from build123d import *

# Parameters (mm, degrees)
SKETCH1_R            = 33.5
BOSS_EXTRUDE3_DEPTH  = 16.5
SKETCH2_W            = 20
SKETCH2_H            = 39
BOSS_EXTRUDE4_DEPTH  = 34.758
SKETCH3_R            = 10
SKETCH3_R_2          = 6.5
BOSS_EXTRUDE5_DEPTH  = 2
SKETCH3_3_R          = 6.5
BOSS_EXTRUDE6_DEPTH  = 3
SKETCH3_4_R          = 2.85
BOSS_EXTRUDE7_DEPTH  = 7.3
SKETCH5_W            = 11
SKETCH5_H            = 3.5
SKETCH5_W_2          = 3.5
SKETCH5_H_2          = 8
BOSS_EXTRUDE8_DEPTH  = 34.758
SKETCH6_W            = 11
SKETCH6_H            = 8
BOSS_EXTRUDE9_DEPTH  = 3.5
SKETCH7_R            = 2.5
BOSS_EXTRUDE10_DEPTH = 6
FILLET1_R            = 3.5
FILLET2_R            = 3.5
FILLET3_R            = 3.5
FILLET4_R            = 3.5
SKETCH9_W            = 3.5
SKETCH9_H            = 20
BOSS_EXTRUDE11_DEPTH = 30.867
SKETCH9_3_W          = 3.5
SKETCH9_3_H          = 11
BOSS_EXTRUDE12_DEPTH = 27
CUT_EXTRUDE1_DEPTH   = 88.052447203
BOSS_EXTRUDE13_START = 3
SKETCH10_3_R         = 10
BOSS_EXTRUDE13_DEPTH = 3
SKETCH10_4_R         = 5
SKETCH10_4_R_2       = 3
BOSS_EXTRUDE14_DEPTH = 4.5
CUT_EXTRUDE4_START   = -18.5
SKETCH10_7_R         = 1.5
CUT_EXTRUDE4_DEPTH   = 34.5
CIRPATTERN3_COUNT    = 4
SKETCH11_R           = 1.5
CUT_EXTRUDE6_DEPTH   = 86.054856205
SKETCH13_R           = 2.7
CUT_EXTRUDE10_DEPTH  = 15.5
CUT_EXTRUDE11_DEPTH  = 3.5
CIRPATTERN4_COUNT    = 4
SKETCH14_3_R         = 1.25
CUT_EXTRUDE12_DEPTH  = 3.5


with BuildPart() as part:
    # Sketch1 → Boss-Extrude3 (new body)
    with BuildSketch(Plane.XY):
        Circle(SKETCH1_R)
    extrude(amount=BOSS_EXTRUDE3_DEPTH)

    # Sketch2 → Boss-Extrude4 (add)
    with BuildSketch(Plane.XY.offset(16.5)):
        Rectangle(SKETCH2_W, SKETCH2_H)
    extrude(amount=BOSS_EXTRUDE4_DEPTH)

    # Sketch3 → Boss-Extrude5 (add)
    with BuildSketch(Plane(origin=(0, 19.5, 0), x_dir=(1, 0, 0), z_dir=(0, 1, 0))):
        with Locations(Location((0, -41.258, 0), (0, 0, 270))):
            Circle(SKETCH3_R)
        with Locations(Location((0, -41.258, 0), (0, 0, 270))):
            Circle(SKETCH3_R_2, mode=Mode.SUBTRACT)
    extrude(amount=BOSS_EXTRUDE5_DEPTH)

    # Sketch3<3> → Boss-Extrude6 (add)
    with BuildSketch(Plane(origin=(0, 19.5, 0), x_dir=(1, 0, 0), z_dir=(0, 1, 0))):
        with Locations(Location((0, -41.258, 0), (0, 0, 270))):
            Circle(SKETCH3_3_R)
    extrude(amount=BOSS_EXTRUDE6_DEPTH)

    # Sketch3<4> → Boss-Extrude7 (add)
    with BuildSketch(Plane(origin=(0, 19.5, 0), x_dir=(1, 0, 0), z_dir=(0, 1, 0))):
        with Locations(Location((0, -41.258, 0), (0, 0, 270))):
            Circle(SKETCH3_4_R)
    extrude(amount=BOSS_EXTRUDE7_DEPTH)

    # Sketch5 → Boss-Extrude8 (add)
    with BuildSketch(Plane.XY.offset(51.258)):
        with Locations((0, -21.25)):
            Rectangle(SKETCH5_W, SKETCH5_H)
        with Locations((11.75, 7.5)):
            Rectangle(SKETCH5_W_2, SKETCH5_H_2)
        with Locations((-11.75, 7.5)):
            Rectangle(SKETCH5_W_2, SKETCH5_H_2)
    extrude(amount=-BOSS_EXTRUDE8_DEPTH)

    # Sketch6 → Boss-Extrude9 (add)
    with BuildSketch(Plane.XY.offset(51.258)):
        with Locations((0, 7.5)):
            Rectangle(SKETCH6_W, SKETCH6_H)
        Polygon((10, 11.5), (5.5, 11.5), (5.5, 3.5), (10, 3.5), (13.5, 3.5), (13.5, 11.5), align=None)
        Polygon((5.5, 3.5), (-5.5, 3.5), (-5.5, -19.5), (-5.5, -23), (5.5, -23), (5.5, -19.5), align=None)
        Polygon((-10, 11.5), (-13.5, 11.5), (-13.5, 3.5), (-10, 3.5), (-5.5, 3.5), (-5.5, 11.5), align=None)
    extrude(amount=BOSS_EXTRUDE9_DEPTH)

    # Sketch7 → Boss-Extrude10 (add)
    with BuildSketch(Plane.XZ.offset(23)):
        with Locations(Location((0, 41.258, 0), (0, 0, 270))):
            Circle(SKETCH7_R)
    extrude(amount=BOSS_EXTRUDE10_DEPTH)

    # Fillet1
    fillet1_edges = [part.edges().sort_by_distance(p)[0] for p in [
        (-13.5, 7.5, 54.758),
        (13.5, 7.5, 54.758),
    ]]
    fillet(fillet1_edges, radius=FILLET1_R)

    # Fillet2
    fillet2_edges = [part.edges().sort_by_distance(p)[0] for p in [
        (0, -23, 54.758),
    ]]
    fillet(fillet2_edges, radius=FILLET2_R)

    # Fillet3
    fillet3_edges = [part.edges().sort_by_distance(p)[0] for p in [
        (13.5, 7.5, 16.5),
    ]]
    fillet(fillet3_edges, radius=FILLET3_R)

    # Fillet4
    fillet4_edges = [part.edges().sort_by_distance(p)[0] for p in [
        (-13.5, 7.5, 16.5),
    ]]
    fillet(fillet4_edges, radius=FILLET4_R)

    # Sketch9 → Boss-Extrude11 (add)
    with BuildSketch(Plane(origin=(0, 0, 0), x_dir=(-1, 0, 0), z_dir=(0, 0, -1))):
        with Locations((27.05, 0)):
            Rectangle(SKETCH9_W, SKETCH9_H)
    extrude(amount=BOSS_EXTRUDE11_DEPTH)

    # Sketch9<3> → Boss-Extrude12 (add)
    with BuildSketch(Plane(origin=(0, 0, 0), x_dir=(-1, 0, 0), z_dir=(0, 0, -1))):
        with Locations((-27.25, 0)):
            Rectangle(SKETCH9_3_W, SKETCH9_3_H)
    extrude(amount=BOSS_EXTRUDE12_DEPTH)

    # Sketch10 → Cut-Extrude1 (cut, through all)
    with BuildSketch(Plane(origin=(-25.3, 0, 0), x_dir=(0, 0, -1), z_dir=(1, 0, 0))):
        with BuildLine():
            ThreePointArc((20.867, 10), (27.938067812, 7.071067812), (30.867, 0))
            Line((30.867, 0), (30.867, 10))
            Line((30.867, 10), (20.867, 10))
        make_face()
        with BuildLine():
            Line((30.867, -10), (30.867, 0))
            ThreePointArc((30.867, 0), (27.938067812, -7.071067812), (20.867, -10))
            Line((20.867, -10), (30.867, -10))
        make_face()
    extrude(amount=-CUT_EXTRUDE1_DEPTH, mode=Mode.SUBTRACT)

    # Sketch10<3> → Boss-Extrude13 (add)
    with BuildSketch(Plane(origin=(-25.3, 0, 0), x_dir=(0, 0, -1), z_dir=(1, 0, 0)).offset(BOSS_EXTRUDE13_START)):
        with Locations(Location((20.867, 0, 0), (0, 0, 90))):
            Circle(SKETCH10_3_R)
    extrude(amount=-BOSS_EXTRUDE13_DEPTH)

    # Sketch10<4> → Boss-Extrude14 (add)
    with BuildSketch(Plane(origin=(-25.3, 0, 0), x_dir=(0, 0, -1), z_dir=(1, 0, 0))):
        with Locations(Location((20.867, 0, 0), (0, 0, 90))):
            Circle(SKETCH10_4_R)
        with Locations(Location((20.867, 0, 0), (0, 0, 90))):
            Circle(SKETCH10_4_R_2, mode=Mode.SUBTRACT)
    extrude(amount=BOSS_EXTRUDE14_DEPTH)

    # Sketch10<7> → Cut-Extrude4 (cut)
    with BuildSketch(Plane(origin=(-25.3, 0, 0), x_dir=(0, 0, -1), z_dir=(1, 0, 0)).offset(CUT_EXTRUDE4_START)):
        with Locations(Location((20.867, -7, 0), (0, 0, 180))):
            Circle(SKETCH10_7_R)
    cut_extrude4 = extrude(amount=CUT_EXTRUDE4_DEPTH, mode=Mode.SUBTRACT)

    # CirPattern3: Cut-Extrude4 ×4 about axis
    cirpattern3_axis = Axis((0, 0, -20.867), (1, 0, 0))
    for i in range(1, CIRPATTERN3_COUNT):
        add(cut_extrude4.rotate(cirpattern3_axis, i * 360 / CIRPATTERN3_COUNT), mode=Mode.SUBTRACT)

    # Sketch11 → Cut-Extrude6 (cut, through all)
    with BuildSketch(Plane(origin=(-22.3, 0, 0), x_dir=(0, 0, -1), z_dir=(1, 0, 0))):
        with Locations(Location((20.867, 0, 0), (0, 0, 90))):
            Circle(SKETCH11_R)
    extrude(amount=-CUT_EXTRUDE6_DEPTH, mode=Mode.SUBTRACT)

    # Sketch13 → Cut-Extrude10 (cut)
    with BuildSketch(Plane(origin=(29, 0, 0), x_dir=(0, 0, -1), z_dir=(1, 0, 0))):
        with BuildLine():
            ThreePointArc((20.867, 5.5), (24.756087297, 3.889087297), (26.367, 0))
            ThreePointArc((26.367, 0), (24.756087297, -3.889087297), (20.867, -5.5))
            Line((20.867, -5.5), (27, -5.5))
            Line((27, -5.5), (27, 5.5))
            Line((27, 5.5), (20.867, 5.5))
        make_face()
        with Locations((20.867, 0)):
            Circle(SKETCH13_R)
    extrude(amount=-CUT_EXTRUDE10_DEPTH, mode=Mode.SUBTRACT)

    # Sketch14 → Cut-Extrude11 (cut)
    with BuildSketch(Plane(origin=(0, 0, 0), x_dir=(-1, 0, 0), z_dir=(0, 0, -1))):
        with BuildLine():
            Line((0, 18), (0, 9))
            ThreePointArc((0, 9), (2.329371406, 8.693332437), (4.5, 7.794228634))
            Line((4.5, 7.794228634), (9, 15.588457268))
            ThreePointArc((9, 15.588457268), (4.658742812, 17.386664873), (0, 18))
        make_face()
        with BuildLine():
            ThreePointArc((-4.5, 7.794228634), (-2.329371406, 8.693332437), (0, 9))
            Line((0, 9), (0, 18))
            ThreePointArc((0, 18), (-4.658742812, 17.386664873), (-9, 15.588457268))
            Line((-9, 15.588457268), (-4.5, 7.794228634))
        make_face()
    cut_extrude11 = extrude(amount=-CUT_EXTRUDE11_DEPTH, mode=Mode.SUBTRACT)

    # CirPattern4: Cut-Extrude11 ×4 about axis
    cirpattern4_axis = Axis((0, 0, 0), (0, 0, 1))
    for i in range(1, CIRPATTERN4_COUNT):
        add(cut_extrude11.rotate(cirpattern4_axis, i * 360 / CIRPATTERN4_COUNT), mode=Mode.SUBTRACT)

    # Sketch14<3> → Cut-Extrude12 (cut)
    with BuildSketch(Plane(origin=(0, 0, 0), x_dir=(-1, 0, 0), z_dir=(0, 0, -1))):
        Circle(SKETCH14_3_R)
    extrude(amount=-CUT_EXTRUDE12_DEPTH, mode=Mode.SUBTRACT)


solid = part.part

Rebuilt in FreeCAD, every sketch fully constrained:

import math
import FreeCAD as App
import Part
import Sketcher

V = App.Vector
Q = App.Units.Quantity


def edges_at(feature, points):
    """Names of the edges that pass closest to the given points."""
    edges = feature.Shape.Edges
    near = lambda p: min(range(len(edges)), key=lambda i: edges[i].distToShape(Part.Vertex(*p))[0])
    return sorted({f"Edge{near(p) + 1}" for p in points})


def add_polygon(sketch, points):
    """Adds a closed chain of lines whose ends are joined by coincident constraints."""
    first, n = sketch.GeometryCount, len(points)
    for a, b in zip(points, points[1:] + points[:1]):
        sketch.addGeometry(Part.LineSegment(App.Vector(*a, 0), App.Vector(*b, 0)), False)
    for i in range(n):
        sketch.addConstraint(Sketcher.Constraint("Coincident", first + i, 2, first + (i + 1) % n, 1))

doc = App.newDocument("Part")
body = doc.addObject("PartDesign::Body", "Body")

# Sketch on XY plane
sketch1 = body.newObject("Sketcher::SketchObject", "Sketch")
sketch1.AttachmentSupport = (doc.getObject("XY_Plane"), [""])
sketch1.MapMode = "FlatFace"
sketch1.addGeometry(Part.Circle(V(0, 0, 0), V(0, 0, 1), 34), False)
sketch1.addConstraint(Sketcher.Constraint("Coincident", 0, 3, -1, 1))
sketch1.addConstraint(Sketcher.Constraint("Diameter", 0, Q("67 mm")))
pad1 = body.newObject("PartDesign::Pad", "Pad")
pad1.Profile = sketch1
pad1.Length = 16.5

# Sketch on XY plane
sketch2 = body.newObject("Sketcher::SketchObject", "Sketch001")
sketch2.AttachmentSupport = (doc.getObject("XY_Plane"), [""])
sketch2.MapMode = "FlatFace"
sketch2.AttachmentOffset = App.Placement(V(0, 0, 16.5), App.Rotation())
add_polygon(sketch2, [(-10, 20), (-10, -20), (10, -20), (10, 20)])  # lines 0-3
sketch2.addConstraint(Sketcher.Constraint("Vertical", 0))
sketch2.addConstraint(Sketcher.Constraint("Horizontal", 1))
sketch2.addConstraint(Sketcher.Constraint("Vertical", 2))
sketch2.addConstraint(Sketcher.Constraint("Horizontal", 3))
sketch2.addConstraint(Sketcher.Constraint("Symmetric", 0, 2, 2, 2, -1, 1))
sketch2.addConstraint(Sketcher.Constraint("DistanceX", 1, 1, 1, 2, Q("20 mm")))
sketch2.addConstraint(Sketcher.Constraint("DistanceY", 0, 2, 0, 1, Q("39 mm")))
pad2 = body.newObject("PartDesign::Pad", "Pad001")
pad2.Profile = sketch2
pad2.Length = 34.758

# Sketch on XZ plane
sketch3 = body.newObject("Sketcher::SketchObject", "Sketch002")
sketch3.AttachmentSupport = (doc.getObject("XZ_Plane"), [""])
sketch3.MapMode = "FlatFace"
sketch3.AttachmentOffset = App.Placement(V(0, 0, -19.5), App.Rotation())
sketch3.addGeometry(Part.Circle(V(0, 41, 0), V(0, 0, 1), 10), False)
sketch3.addGeometry(Part.Circle(V(0, 41, 0), V(0, 0, 1), 6), False)
sketch3.addConstraint(Sketcher.Constraint("Coincident", 1, 3, 0, 3))
sketch3.addConstraint(Sketcher.Constraint("PointOnObject", 0, 3, -2))
sketch3.addConstraint(Sketcher.Constraint("Diameter", 0, Q("20 mm")))
sketch3.addConstraint(Sketcher.Constraint("Diameter", 1, Q("13 mm")))
sketch3.addConstraint(Sketcher.Constraint("DistanceY", -1, 1, 0, 3, Q("41.258 mm")))
pad3 = body.newObject("PartDesign::Pad", "Pad002")
pad3.Profile = sketch3
pad3.Length = 2
pad3.Reversed = True

# Sketch on XZ plane
sketch4 = body.newObject("Sketcher::SketchObject", "Sketch003")
sketch4.AttachmentSupport = (doc.getObject("XZ_Plane"), [""])
sketch4.MapMode = "FlatFace"
sketch4.AttachmentOffset = App.Placement(V(0, 0, -19.5), App.Rotation())
sketch4.addGeometry(Part.Circle(V(0, 41, 0), V(0, 0, 1), 6), False)
sketch4.addConstraint(Sketcher.Constraint("PointOnObject", 0, 3, -2))
sketch4.addConstraint(Sketcher.Constraint("Diameter", 0, Q("13 mm")))
sketch4.addConstraint(Sketcher.Constraint("DistanceY", -1, 1, 0, 3, Q("41.258 mm")))
pad4 = body.newObject("PartDesign::Pad", "Pad003")
pad4.Profile = sketch4
pad4.Length = 3
pad4.Reversed = True

# Sketch on XZ plane
sketch5 = body.newObject("Sketcher::SketchObject", "Sketch004")
sketch5.AttachmentSupport = (doc.getObject("XZ_Plane"), [""])
sketch5.MapMode = "FlatFace"
sketch5.AttachmentOffset = App.Placement(V(0, 0, -19.5), App.Rotation())
sketch5.addGeometry(Part.Circle(V(0, 41.3, 0), V(0, 0, 1), 2.9), False)
sketch5.addConstraint(Sketcher.Constraint("PointOnObject", 0, 3, -2))
sketch5.addConstraint(Sketcher.Constraint("Diameter", 0, Q("5.7 mm")))
sketch5.addConstraint(Sketcher.Constraint("DistanceY", -1, 1, 0, 3, Q("41.258 mm")))
pad5 = body.newObject("PartDesign::Pad", "Pad004")
pad5.Profile = sketch5
pad5.Length = 7.3
pad5.Reversed = True

# Sketch on XY plane
sketch6 = body.newObject("Sketcher::SketchObject", "Sketch005")
sketch6.AttachmentSupport = (doc.getObject("XY_Plane"), [""])
sketch6.MapMode = "FlatFace"
sketch6.AttachmentOffset = App.Placement(V(0, 0, 51.258), App.Rotation())
add_polygon(sketch6, [(-5.5, -19.5), (-5.5, -23), (5.5, -23), (5.5, -19.5)])  # lines 0-3
add_polygon(sketch6, [(10, 11.5), (10, 3.5), (13.5, 3.5), (13.5, 11.5)])  # lines 4-7
add_polygon(sketch6, [(-13.5, 11.5), (-13.5, 3.5), (-10, 3.5), (-10, 11.5)])  # lines 8-11
sketch6.addConstraint(Sketcher.Constraint("Vertical", 0))
sketch6.addConstraint(Sketcher.Constraint("Horizontal", 1))
sketch6.addConstraint(Sketcher.Constraint("Vertical", 2))
sketch6.addConstraint(Sketcher.Constraint("Horizontal", 3))
sketch6.addConstraint(Sketcher.Constraint("Vertical", 4))
sketch6.addConstraint(Sketcher.Constraint("Horizontal", 5))
sketch6.addConstraint(Sketcher.Constraint("Vertical", 6))
sketch6.addConstraint(Sketcher.Constraint("Horizontal", 7))
sketch6.addConstraint(Sketcher.Constraint("Vertical", 8))
sketch6.addConstraint(Sketcher.Constraint("Horizontal", 9))
sketch6.addConstraint(Sketcher.Constraint("Vertical", 10))
sketch6.addConstraint(Sketcher.Constraint("Horizontal", 11))
sketch6.addConstraint(Sketcher.Constraint("Symmetric", 5, 2, 8, 2, -2))
sketch6.addConstraint(Sketcher.Constraint("Symmetric", 7, 2, 10, 2, -2))
sketch6.addConstraint(Sketcher.Constraint("Equal", 11, 0))
sketch6.addConstraint(Sketcher.Constraint("DistanceX", 1, 1, 1, 2, Q("11 mm")))
sketch6.addConstraint(Sketcher.Constraint("DistanceY", 4, 2, 4, 1, Q("8 mm")))
sketch6.addConstraint(Sketcher.Constraint("DistanceX", 5, 1, 5, 2, Q("3.5 mm")))
sketch6.addConstraint(Sketcher.Constraint("DistanceY", 0, 2, -1, 1, Q("23 mm")))
sketch6.addConstraint(Sketcher.Constraint("DistanceX", -1, 1, 4, 2, Q("10 mm")))
sketch6.addConstraint(Sketcher.Constraint("DistanceY", 2, 2, 4, 2, Q("23 mm")))
sketch6.addConstraint(Sketcher.Constraint("DistanceX", 2, 2, 5, 2, Q("8 mm")))
pad6 = body.newObject("PartDesign::Pad", "Pad005")
pad6.Profile = sketch6
pad6.Length = 34.758
pad6.Reversed = True

# Sketch on XY plane
sketch7 = body.newObject("Sketcher::SketchObject", "Sketch006")
sketch7.AttachmentSupport = (doc.getObject("XY_Plane"), [""])
sketch7.MapMode = "FlatFace"
sketch7.AttachmentOffset = App.Placement(V(0, 0, 51.258), App.Rotation())
add_polygon(sketch7, [(-6, 4), (-6, -23), (6, -23), (6, 4), (14, 4), (14, 12), (-14, 12), (-14, 4)])  # lines 0-7
sketch7.addConstraint(Sketcher.Constraint("Vertical", 0))
sketch7.addConstraint(Sketcher.Constraint("Horizontal", 1))
sketch7.addConstraint(Sketcher.Constraint("Vertical", 2))
sketch7.addConstraint(Sketcher.Constraint("Horizontal", 3))
sketch7.addConstraint(Sketcher.Constraint("Vertical", 4))
sketch7.addConstraint(Sketcher.Constraint("Horizontal", 5))
sketch7.addConstraint(Sketcher.Constraint("Vertical", 6))
sketch7.addConstraint(Sketcher.Constraint("Horizontal", 7))
sketch7.addConstraint(Sketcher.Constraint("Symmetric", 3, 2, 6, 2, -2))
sketch7.addConstraint(Sketcher.Constraint("Equal", 3, 7))
sketch7.addConstraint(Sketcher.Constraint("Equal", 7, 4))
sketch7.addConstraint(Sketcher.Constraint("DistanceX", 1, 1, 1, 2, Q("11 mm")))
sketch7.addConstraint(Sketcher.Constraint("DistanceX", 3, 1, 3, 2, Q("8 mm")))
sketch7.addConstraint(Sketcher.Constraint("DistanceY", 0, 2, 0, 1, Q("26.5 mm")))
sketch7.addConstraint(Sketcher.Constraint("DistanceY", 0, 2, -1, 1, Q("23 mm")))
pad7 = body.newObject("PartDesign::Pad", "Pad006")
pad7.Profile = sketch7
pad7.Length = 3.5

# Sketch on XZ plane
sketch8 = body.newObject("Sketcher::SketchObject", "Sketch007")
sketch8.AttachmentSupport = (doc.getObject("XZ_Plane"), [""])
sketch8.MapMode = "FlatFace"
sketch8.AttachmentOffset = App.Placement(V(0, 0, 23), App.Rotation())
sketch8.addGeometry(Part.Circle(V(0, 41.3, 0), V(0, 0, 1), 2.5), False)
sketch8.addConstraint(Sketcher.Constraint("PointOnObject", 0, 3, -2))
sketch8.addConstraint(Sketcher.Constraint("Diameter", 0, Q("5 mm")))
sketch8.addConstraint(Sketcher.Constraint("DistanceY", -1, 1, 0, 3, Q("41.258 mm")))
pad8 = body.newObject("PartDesign::Pad", "Pad007")
pad8.Profile = sketch8
pad8.Length = 6
doc.recompute()

fillet = body.newObject("PartDesign::Fillet", "Fillet")
fillet.Base = (pad8, edges_at(pad8, [(-13.5, 7.5, 54.758), (13.5, 7.5, 54.758)]))
fillet.Radius = 3.5
doc.recompute()

fillet2 = body.newObject("PartDesign::Fillet", "Fillet001")
fillet2.Base = (fillet, edges_at(fillet, [(0, -23, 54.758)]))
fillet2.Radius = 3.5
doc.recompute()

fillet3 = body.newObject("PartDesign::Fillet", "Fillet002")
fillet3.Base = (fillet2, edges_at(fillet2, [(13.5, 7.5, 16.5)]))
fillet3.Radius = 3.5
doc.recompute()

fillet4 = body.newObject("PartDesign::Fillet", "Fillet003")
fillet4.Base = (fillet3, edges_at(fillet3, [(-13.5, 7.5, 16.5)]))
fillet4.Radius = 3.5

# Sketch on XY plane
sketch9 = body.newObject("Sketcher::SketchObject", "Sketch008")
sketch9.AttachmentSupport = (doc.getObject("XY_Plane"), [""])
sketch9.MapMode = "FlatFace"
add_polygon(sketch9, [(-25.3, 10), (-25.3, -10), (-28.8, -10), (-28.8, 10)])  # lines 0-3
sketch9.addConstraint(Sketcher.Constraint("Vertical", 0))
sketch9.addConstraint(Sketcher.Constraint("Horizontal", 1))
sketch9.addConstraint(Sketcher.Constraint("Vertical", 2))
sketch9.addConstraint(Sketcher.Constraint("Horizontal", 3))
sketch9.addConstraint(Sketcher.Constraint("DistanceY", 0, 2, 0, 1, Q("20 mm")))
sketch9.addConstraint(Sketcher.Constraint("DistanceX", 1, 2, 1, 1, Q("3.5 mm")))
sketch9.addConstraint(Sketcher.Constraint("DistanceY", 0, 2, -1, 1, Q("10 mm")))
sketch9.addConstraint(Sketcher.Constraint("DistanceX", 0, 2, -1, 1, Q("25.3 mm")))
pad9 = body.newObject("PartDesign::Pad", "Pad008")
pad9.Profile = sketch9
pad9.Length = 30.867
pad9.Reversed = True

# Sketch on XY plane
sketch10 = body.newObject("Sketcher::SketchObject", "Sketch009")
sketch10.AttachmentSupport = (doc.getObject("XY_Plane"), [""])
sketch10.MapMode = "FlatFace"
add_polygon(sketch10, [(29, 5.5), (29, -5.5), (25.5, -5.5), (25.5, 5.5)])  # lines 0-3
sketch10.addConstraint(Sketcher.Constraint("Vertical", 0))
sketch10.addConstraint(Sketcher.Constraint("Horizontal", 1))
sketch10.addConstraint(Sketcher.Constraint("Vertical", 2))
sketch10.addConstraint(Sketcher.Constraint("Horizontal", 3))
sketch10.addConstraint(Sketcher.Constraint("DistanceY", 0, 2, 0, 1, Q("11 mm")))
sketch10.addConstraint(Sketcher.Constraint("DistanceX", 1, 2, 1, 1, Q("3.5 mm")))
sketch10.addConstraint(Sketcher.Constraint("DistanceX", -1, 1, 0, 2, Q("29 mm")))
sketch10.addConstraint(Sketcher.Constraint("DistanceY", 0, 2, -1, 1, Q("5.5 mm")))
pad10 = body.newObject("PartDesign::Pad", "Pad009")
pad10.Profile = sketch10
pad10.Length = 27
pad10.Reversed = True

# Sketch on YZ plane
sketch11 = body.newObject("Sketcher::SketchObject", "Sketch010")
sketch11.AttachmentSupport = (doc.getObject("YZ_Plane"), [""])
sketch11.MapMode = "FlatFace"
sketch11.AttachmentOffset = App.Placement(V(0, 0, -25.3), App.Rotation())
sketch11.addGeometry(Part.ArcOfCircle(Part.Circle(V(0, -21, 0), V(0, 0, 1), 10), math.radians(-90), math.radians(0)), False)
sketch11.addGeometry(Part.LineSegment(V(0, -31, 0), V(10, -31, 0)), False)
sketch11.addGeometry(Part.LineSegment(V(10, -31, 0), V(10, -21, 0)), False)
sketch11.addGeometry(Part.LineSegment(V(-10, -31, 0), V(0, -31, 0)), False)
sketch11.addGeometry(Part.ArcOfCircle(Part.Circle(V(0, -21, 0), V(0, 0, 1), 10), math.radians(180), math.radians(270)), False)
sketch11.addGeometry(Part.LineSegment(V(-10, -21, 0), V(-10, -31, 0)), False)
sketch11.addConstraint(Sketcher.Constraint("Tangent", 0, 1, 1, 1))
sketch11.addConstraint(Sketcher.Constraint("Coincident", 1, 2, 2, 1))
sketch11.addConstraint(Sketcher.Constraint("Tangent", 2, 2, 0, 2))
sketch11.addConstraint(Sketcher.Constraint("Tangent", 3, 2, 4, 2))
sketch11.addConstraint(Sketcher.Constraint("Tangent", 4, 1, 5, 1))
sketch11.addConstraint(Sketcher.Constraint("Coincident", 5, 2, 3, 1))
sketch11.addConstraint(Sketcher.Constraint("Horizontal", 1))
sketch11.addConstraint(Sketcher.Constraint("Vertical", 2))
sketch11.addConstraint(Sketcher.Constraint("Horizontal", 3))
sketch11.addConstraint(Sketcher.Constraint("Vertical", 5))
sketch11.addConstraint(Sketcher.Constraint("Coincident", 4, 3, 0, 3))
sketch11.addConstraint(Sketcher.Constraint("Equal", 0, 4))
sketch11.addConstraint(Sketcher.Constraint("PointOnObject", 0, 3, -2))
sketch11.addConstraint(Sketcher.Constraint("Radius", 0, Q("10 mm")))
sketch11.addConstraint(Sketcher.Constraint("DistanceY", 0, 3, -1, 1, Q("20.867 mm")))
pocket1 = body.newObject("PartDesign::Pocket", "Pocket")
pocket1.Profile = sketch11
pocket1.Type = "ThroughAll"

# Sketch on YZ plane
sketch12 = body.newObject("Sketcher::SketchObject", "Sketch011")
sketch12.AttachmentSupport = (doc.getObject("YZ_Plane"), [""])
sketch12.MapMode = "FlatFace"
sketch12.AttachmentOffset = App.Placement(V(0, 0, -22.3), App.Rotation())
sketch12.addGeometry(Part.Circle(V(0, -21, 0), V(0, 0, 1), 10), False)
sketch12.addConstraint(Sketcher.Constraint("PointOnObject", 0, 3, -2))
sketch12.addConstraint(Sketcher.Constraint("Diameter", 0, Q("20 mm")))
sketch12.addConstraint(Sketcher.Constraint("DistanceY", 0, 3, -1, 1, Q("20.867 mm")))
pad11 = body.newObject("PartDesign::Pad", "Pad010")
pad11.Profile = sketch12
pad11.Length = 3
pad11.Reversed = True

# Sketch on YZ plane
sketch13 = body.newObject("Sketcher::SketchObject", "Sketch012")
sketch13.AttachmentSupport = (doc.getObject("YZ_Plane"), [""])
sketch13.MapMode = "FlatFace"
sketch13.AttachmentOffset = App.Placement(V(0, 0, -25.3), App.Rotation())
sketch13.addGeometry(Part.Circle(V(0, -20.9, 0), V(0, 0, 1), 5), False)
sketch13.addGeometry(Part.Circle(V(0, -20.9, 0), V(0, 0, 1), 3), False)
sketch13.addConstraint(Sketcher.Constraint("Coincident", 1, 3, 0, 3))
sketch13.addConstraint(Sketcher.Constraint("PointOnObject", 0, 3, -2))
sketch13.addConstraint(Sketcher.Constraint("Diameter", 0, Q("10 mm")))
sketch13.addConstraint(Sketcher.Constraint("Diameter", 1, Q("6 mm")))
sketch13.addConstraint(Sketcher.Constraint("DistanceY", 0, 3, -1, 1, Q("20.867 mm")))
pad12 = body.newObject("PartDesign::Pad", "Pad011")
pad12.Profile = sketch13
pad12.Length = 4.5

# Sketch on YZ plane
sketch14 = body.newObject("Sketcher::SketchObject", "Sketch013")
sketch14.AttachmentSupport = (doc.getObject("YZ_Plane"), [""])
sketch14.MapMode = "FlatFace"
sketch14.AttachmentOffset = App.Placement(V(0, 0, -43.8), App.Rotation())
sketch14.addGeometry(Part.Circle(V(-7, -20.9, 0), V(0, 0, 1), 1.5), False)
sketch14.addConstraint(Sketcher.Constraint("Diameter", 0, Q("3 mm")))
sketch14.addConstraint(Sketcher.Constraint("DistanceX", 0, 3, -1, 1, Q("7 mm")))
sketch14.addConstraint(Sketcher.Constraint("DistanceY", 0, 3, -1, 1, Q("20.867 mm")))
pocket2 = body.newObject("PartDesign::Pocket", "Pocket001")
pocket2.Profile = sketch14
pocket2.Length = 34.5
pocket2.Reversed = True
doc.recompute()

datumline = body.newObject("PartDesign::Line", "DatumLine")
datumline.Placement = App.Placement(V(0, 0, -20.867), App.Rotation(V(0, 0, 1), V(1, 0, 0)))
polarpattern = body.newObject("PartDesign::PolarPattern", "PolarPattern")
polarpattern.Originals = [pocket2]
polarpattern.Axis = (datumline, [""])
polarpattern.Angle = 360
polarpattern.Occurrences = 4
body.Tip = polarpattern

# Sketch on YZ plane
sketch15 = body.newObject("Sketcher::SketchObject", "Sketch014")
sketch15.AttachmentSupport = (doc.getObject("YZ_Plane"), [""])
sketch15.MapMode = "FlatFace"
sketch15.AttachmentOffset = App.Placement(V(0, 0, -22.3), App.Rotation())
sketch15.addGeometry(Part.Circle(V(0, -20.9, 0), V(0, 0, 1), 1.5), False)
sketch15.addConstraint(Sketcher.Constraint("PointOnObject", 0, 3, -2))
sketch15.addConstraint(Sketcher.Constraint("Diameter", 0, Q("3 mm")))
sketch15.addConstraint(Sketcher.Constraint("DistanceY", 0, 3, -1, 1, Q("20.867 mm")))
pocket3 = body.newObject("PartDesign::Pocket", "Pocket002")
pocket3.Profile = sketch15
pocket3.Type = "ThroughAll"

# Sketch on YZ plane
sketch16 = body.newObject("Sketcher::SketchObject", "Sketch015")
sketch16.AttachmentSupport = (doc.getObject("YZ_Plane"), [""])
sketch16.MapMode = "FlatFace"
sketch16.AttachmentOffset = App.Placement(V(0, 0, 29), App.Rotation())
sketch16.addGeometry(Part.ArcOfCircle(Part.Circle(V(0, -20.9, 0), V(0, 0, 1), 5.5), math.radians(-90), math.radians(0)), False)
sketch16.addGeometry(Part.ArcOfCircle(Part.Circle(V(0, -20.9, 0), V(0, 0, 1), 5.5), math.radians(180), math.radians(270)), False)
sketch16.addGeometry(Part.LineSegment(V(-5.5, -20.9, 0), V(-5.5, -27, 0)), False)
sketch16.addGeometry(Part.LineSegment(V(-5.5, -27, 0), V(5.5, -27, 0)), False)
sketch16.addGeometry(Part.LineSegment(V(5.5, -27, 0), V(5.5, -20.9, 0)), False)
sketch16.addGeometry(Part.Circle(V(0, -20.9, 0), V(0, 0, 1), 2.7), False)
sketch16.addConstraint(Sketcher.Constraint("Tangent", 0, 1, 1, 2))
sketch16.addConstraint(Sketcher.Constraint("Tangent", 1, 1, 2, 1))
sketch16.addConstraint(Sketcher.Constraint("Coincident", 2, 2, 3, 1))
sketch16.addConstraint(Sketcher.Constraint("Coincident", 3, 2, 4, 1))
sketch16.addConstraint(Sketcher.Constraint("Tangent", 4, 2, 0, 2))
sketch16.addConstraint(Sketcher.Constraint("Vertical", 2))
sketch16.addConstraint(Sketcher.Constraint("Horizontal", 3))
sketch16.addConstraint(Sketcher.Constraint("Vertical", 4))
sketch16.addConstraint(Sketcher.Constraint("Coincident", 5, 3, 0, 3))
sketch16.addConstraint(Sketcher.Constraint("Equal", 0, 1))
sketch16.addConstraint(Sketcher.Constraint("PointOnObject", 0, 3, -2))
sketch16.addConstraint(Sketcher.Constraint("PointOnObject", 0, 1, -2))
sketch16.addConstraint(Sketcher.Constraint("Diameter", 5, Q("5.4 mm")))
sketch16.addConstraint(Sketcher.Constraint("Radius", 0, Q("5.5 mm")))
sketch16.addConstraint(Sketcher.Constraint("DistanceY", 2, 2, -1, 1, Q("27 mm")))
sketch16.addConstraint(Sketcher.Constraint("DistanceY", 2, 2, 2, 1, Q("6.133 mm")))
pocket4 = body.newObject("PartDesign::Pocket", "Pocket003")
pocket4.Profile = sketch16
pocket4.Length = 15.5

# Sketch on XY plane
sketch17 = body.newObject("Sketcher::SketchObject", "Sketch016")
sketch17.AttachmentSupport = (doc.getObject("XY_Plane"), [""])
sketch17.MapMode = "FlatFace"
sketch17.addGeometry(Part.ArcOfCircle(Part.Circle(V(0, 0, 0), V(0, 0, 1), 9), math.radians(90), math.radians(120)), False)
sketch17.addGeometry(Part.LineSegment(V(-4.5, 7.8, 0), V(-9, 15.6, 0)), False)
sketch17.addGeometry(Part.ArcOfCircle(Part.Circle(V(0, 0, 0), V(0, 0, 1), 18), math.radians(90), math.radians(120)), False)
sketch17.addGeometry(Part.ArcOfCircle(Part.Circle(V(0, 0, 0), V(0, 0, 1), 18), math.radians(60), math.radians(90)), False)
sketch17.addGeometry(Part.LineSegment(V(9, 15.6, 0), V(4.5, 7.8, 0)), False)
sketch17.addGeometry(Part.ArcOfCircle(Part.Circle(V(0, 0, 0), V(0, 0, 1), 9), math.radians(60), math.radians(90)), False)
sketch17.addConstraint(Sketcher.Constraint("Coincident", 0, 2, 1, 1))
sketch17.addConstraint(Sketcher.Constraint("Coincident", 1, 2, 2, 2))
sketch17.addConstraint(Sketcher.Constraint("Tangent", 2, 1, 3, 2))
sketch17.addConstraint(Sketcher.Constraint("Coincident", 3, 1, 4, 1))
sketch17.addConstraint(Sketcher.Constraint("Coincident", 4, 2, 5, 1))
sketch17.addConstraint(Sketcher.Constraint("Tangent", 5, 2, 0, 1))
sketch17.addConstraint(Sketcher.Constraint("Coincident", 0, 3, -1, 1))
sketch17.addConstraint(Sketcher.Constraint("Coincident", 2, 3, -1, 1))
sketch17.addConstraint(Sketcher.Constraint("Equal", 2, 3))
sketch17.addConstraint(Sketcher.Constraint("Equal", 0, 5))
sketch17.addConstraint(Sketcher.Constraint("PointOnObject", 2, 1, -2))
sketch17.addConstraint(Sketcher.Constraint("PointOnObject", 5, 2, -2))
sketch17.addConstraint(Sketcher.Constraint("Horizontal", 1, 2, 3, 1))
sketch17.addConstraint(Sketcher.Constraint("Horizontal", 0, 2, 4, 2))
sketch17.addConstraint(Sketcher.Constraint("Radius", 0, Q("9 mm")))
sketch17.addConstraint(Sketcher.Constraint("Radius", 2, Q("18 mm")))
sketch17.addConstraint(Sketcher.Constraint("Angle", 1, Q("120 deg")))
sketch17.addConstraint(Sketcher.Constraint("DistanceX", 1, 2, -1, 1, Q("9 mm")))
pocket5 = body.newObject("PartDesign::Pocket", "Pocket004")
pocket5.Profile = sketch17
pocket5.Length = 3.5
pocket5.Reversed = True
doc.recompute()

polarpattern2 = body.newObject("PartDesign::PolarPattern", "PolarPattern001")
polarpattern2.Originals = [pocket5]
polarpattern2.Axis = (doc.getObject("Z_Axis"), [""])
polarpattern2.Angle = 360
polarpattern2.Occurrences = 4
body.Tip = polarpattern2

# Sketch on XY plane
sketch18 = body.newObject("Sketcher::SketchObject", "Sketch017")
sketch18.AttachmentSupport = (doc.getObject("XY_Plane"), [""])
sketch18.MapMode = "FlatFace"
sketch18.addGeometry(Part.Circle(V(0, 0, 0), V(0, 0, 1), 1.2), False)
sketch18.addConstraint(Sketcher.Constraint("Coincident", 0, 3, -1, 1))
sketch18.addConstraint(Sketcher.Constraint("Diameter", 0, Q("2.5 mm")))
pocket6 = body.newObject("PartDesign::Pocket", "Pocket005")
pocket6.Profile = sketch18
pocket6.Length = 3.5
pocket6.Reversed = True

doc.recompute()
